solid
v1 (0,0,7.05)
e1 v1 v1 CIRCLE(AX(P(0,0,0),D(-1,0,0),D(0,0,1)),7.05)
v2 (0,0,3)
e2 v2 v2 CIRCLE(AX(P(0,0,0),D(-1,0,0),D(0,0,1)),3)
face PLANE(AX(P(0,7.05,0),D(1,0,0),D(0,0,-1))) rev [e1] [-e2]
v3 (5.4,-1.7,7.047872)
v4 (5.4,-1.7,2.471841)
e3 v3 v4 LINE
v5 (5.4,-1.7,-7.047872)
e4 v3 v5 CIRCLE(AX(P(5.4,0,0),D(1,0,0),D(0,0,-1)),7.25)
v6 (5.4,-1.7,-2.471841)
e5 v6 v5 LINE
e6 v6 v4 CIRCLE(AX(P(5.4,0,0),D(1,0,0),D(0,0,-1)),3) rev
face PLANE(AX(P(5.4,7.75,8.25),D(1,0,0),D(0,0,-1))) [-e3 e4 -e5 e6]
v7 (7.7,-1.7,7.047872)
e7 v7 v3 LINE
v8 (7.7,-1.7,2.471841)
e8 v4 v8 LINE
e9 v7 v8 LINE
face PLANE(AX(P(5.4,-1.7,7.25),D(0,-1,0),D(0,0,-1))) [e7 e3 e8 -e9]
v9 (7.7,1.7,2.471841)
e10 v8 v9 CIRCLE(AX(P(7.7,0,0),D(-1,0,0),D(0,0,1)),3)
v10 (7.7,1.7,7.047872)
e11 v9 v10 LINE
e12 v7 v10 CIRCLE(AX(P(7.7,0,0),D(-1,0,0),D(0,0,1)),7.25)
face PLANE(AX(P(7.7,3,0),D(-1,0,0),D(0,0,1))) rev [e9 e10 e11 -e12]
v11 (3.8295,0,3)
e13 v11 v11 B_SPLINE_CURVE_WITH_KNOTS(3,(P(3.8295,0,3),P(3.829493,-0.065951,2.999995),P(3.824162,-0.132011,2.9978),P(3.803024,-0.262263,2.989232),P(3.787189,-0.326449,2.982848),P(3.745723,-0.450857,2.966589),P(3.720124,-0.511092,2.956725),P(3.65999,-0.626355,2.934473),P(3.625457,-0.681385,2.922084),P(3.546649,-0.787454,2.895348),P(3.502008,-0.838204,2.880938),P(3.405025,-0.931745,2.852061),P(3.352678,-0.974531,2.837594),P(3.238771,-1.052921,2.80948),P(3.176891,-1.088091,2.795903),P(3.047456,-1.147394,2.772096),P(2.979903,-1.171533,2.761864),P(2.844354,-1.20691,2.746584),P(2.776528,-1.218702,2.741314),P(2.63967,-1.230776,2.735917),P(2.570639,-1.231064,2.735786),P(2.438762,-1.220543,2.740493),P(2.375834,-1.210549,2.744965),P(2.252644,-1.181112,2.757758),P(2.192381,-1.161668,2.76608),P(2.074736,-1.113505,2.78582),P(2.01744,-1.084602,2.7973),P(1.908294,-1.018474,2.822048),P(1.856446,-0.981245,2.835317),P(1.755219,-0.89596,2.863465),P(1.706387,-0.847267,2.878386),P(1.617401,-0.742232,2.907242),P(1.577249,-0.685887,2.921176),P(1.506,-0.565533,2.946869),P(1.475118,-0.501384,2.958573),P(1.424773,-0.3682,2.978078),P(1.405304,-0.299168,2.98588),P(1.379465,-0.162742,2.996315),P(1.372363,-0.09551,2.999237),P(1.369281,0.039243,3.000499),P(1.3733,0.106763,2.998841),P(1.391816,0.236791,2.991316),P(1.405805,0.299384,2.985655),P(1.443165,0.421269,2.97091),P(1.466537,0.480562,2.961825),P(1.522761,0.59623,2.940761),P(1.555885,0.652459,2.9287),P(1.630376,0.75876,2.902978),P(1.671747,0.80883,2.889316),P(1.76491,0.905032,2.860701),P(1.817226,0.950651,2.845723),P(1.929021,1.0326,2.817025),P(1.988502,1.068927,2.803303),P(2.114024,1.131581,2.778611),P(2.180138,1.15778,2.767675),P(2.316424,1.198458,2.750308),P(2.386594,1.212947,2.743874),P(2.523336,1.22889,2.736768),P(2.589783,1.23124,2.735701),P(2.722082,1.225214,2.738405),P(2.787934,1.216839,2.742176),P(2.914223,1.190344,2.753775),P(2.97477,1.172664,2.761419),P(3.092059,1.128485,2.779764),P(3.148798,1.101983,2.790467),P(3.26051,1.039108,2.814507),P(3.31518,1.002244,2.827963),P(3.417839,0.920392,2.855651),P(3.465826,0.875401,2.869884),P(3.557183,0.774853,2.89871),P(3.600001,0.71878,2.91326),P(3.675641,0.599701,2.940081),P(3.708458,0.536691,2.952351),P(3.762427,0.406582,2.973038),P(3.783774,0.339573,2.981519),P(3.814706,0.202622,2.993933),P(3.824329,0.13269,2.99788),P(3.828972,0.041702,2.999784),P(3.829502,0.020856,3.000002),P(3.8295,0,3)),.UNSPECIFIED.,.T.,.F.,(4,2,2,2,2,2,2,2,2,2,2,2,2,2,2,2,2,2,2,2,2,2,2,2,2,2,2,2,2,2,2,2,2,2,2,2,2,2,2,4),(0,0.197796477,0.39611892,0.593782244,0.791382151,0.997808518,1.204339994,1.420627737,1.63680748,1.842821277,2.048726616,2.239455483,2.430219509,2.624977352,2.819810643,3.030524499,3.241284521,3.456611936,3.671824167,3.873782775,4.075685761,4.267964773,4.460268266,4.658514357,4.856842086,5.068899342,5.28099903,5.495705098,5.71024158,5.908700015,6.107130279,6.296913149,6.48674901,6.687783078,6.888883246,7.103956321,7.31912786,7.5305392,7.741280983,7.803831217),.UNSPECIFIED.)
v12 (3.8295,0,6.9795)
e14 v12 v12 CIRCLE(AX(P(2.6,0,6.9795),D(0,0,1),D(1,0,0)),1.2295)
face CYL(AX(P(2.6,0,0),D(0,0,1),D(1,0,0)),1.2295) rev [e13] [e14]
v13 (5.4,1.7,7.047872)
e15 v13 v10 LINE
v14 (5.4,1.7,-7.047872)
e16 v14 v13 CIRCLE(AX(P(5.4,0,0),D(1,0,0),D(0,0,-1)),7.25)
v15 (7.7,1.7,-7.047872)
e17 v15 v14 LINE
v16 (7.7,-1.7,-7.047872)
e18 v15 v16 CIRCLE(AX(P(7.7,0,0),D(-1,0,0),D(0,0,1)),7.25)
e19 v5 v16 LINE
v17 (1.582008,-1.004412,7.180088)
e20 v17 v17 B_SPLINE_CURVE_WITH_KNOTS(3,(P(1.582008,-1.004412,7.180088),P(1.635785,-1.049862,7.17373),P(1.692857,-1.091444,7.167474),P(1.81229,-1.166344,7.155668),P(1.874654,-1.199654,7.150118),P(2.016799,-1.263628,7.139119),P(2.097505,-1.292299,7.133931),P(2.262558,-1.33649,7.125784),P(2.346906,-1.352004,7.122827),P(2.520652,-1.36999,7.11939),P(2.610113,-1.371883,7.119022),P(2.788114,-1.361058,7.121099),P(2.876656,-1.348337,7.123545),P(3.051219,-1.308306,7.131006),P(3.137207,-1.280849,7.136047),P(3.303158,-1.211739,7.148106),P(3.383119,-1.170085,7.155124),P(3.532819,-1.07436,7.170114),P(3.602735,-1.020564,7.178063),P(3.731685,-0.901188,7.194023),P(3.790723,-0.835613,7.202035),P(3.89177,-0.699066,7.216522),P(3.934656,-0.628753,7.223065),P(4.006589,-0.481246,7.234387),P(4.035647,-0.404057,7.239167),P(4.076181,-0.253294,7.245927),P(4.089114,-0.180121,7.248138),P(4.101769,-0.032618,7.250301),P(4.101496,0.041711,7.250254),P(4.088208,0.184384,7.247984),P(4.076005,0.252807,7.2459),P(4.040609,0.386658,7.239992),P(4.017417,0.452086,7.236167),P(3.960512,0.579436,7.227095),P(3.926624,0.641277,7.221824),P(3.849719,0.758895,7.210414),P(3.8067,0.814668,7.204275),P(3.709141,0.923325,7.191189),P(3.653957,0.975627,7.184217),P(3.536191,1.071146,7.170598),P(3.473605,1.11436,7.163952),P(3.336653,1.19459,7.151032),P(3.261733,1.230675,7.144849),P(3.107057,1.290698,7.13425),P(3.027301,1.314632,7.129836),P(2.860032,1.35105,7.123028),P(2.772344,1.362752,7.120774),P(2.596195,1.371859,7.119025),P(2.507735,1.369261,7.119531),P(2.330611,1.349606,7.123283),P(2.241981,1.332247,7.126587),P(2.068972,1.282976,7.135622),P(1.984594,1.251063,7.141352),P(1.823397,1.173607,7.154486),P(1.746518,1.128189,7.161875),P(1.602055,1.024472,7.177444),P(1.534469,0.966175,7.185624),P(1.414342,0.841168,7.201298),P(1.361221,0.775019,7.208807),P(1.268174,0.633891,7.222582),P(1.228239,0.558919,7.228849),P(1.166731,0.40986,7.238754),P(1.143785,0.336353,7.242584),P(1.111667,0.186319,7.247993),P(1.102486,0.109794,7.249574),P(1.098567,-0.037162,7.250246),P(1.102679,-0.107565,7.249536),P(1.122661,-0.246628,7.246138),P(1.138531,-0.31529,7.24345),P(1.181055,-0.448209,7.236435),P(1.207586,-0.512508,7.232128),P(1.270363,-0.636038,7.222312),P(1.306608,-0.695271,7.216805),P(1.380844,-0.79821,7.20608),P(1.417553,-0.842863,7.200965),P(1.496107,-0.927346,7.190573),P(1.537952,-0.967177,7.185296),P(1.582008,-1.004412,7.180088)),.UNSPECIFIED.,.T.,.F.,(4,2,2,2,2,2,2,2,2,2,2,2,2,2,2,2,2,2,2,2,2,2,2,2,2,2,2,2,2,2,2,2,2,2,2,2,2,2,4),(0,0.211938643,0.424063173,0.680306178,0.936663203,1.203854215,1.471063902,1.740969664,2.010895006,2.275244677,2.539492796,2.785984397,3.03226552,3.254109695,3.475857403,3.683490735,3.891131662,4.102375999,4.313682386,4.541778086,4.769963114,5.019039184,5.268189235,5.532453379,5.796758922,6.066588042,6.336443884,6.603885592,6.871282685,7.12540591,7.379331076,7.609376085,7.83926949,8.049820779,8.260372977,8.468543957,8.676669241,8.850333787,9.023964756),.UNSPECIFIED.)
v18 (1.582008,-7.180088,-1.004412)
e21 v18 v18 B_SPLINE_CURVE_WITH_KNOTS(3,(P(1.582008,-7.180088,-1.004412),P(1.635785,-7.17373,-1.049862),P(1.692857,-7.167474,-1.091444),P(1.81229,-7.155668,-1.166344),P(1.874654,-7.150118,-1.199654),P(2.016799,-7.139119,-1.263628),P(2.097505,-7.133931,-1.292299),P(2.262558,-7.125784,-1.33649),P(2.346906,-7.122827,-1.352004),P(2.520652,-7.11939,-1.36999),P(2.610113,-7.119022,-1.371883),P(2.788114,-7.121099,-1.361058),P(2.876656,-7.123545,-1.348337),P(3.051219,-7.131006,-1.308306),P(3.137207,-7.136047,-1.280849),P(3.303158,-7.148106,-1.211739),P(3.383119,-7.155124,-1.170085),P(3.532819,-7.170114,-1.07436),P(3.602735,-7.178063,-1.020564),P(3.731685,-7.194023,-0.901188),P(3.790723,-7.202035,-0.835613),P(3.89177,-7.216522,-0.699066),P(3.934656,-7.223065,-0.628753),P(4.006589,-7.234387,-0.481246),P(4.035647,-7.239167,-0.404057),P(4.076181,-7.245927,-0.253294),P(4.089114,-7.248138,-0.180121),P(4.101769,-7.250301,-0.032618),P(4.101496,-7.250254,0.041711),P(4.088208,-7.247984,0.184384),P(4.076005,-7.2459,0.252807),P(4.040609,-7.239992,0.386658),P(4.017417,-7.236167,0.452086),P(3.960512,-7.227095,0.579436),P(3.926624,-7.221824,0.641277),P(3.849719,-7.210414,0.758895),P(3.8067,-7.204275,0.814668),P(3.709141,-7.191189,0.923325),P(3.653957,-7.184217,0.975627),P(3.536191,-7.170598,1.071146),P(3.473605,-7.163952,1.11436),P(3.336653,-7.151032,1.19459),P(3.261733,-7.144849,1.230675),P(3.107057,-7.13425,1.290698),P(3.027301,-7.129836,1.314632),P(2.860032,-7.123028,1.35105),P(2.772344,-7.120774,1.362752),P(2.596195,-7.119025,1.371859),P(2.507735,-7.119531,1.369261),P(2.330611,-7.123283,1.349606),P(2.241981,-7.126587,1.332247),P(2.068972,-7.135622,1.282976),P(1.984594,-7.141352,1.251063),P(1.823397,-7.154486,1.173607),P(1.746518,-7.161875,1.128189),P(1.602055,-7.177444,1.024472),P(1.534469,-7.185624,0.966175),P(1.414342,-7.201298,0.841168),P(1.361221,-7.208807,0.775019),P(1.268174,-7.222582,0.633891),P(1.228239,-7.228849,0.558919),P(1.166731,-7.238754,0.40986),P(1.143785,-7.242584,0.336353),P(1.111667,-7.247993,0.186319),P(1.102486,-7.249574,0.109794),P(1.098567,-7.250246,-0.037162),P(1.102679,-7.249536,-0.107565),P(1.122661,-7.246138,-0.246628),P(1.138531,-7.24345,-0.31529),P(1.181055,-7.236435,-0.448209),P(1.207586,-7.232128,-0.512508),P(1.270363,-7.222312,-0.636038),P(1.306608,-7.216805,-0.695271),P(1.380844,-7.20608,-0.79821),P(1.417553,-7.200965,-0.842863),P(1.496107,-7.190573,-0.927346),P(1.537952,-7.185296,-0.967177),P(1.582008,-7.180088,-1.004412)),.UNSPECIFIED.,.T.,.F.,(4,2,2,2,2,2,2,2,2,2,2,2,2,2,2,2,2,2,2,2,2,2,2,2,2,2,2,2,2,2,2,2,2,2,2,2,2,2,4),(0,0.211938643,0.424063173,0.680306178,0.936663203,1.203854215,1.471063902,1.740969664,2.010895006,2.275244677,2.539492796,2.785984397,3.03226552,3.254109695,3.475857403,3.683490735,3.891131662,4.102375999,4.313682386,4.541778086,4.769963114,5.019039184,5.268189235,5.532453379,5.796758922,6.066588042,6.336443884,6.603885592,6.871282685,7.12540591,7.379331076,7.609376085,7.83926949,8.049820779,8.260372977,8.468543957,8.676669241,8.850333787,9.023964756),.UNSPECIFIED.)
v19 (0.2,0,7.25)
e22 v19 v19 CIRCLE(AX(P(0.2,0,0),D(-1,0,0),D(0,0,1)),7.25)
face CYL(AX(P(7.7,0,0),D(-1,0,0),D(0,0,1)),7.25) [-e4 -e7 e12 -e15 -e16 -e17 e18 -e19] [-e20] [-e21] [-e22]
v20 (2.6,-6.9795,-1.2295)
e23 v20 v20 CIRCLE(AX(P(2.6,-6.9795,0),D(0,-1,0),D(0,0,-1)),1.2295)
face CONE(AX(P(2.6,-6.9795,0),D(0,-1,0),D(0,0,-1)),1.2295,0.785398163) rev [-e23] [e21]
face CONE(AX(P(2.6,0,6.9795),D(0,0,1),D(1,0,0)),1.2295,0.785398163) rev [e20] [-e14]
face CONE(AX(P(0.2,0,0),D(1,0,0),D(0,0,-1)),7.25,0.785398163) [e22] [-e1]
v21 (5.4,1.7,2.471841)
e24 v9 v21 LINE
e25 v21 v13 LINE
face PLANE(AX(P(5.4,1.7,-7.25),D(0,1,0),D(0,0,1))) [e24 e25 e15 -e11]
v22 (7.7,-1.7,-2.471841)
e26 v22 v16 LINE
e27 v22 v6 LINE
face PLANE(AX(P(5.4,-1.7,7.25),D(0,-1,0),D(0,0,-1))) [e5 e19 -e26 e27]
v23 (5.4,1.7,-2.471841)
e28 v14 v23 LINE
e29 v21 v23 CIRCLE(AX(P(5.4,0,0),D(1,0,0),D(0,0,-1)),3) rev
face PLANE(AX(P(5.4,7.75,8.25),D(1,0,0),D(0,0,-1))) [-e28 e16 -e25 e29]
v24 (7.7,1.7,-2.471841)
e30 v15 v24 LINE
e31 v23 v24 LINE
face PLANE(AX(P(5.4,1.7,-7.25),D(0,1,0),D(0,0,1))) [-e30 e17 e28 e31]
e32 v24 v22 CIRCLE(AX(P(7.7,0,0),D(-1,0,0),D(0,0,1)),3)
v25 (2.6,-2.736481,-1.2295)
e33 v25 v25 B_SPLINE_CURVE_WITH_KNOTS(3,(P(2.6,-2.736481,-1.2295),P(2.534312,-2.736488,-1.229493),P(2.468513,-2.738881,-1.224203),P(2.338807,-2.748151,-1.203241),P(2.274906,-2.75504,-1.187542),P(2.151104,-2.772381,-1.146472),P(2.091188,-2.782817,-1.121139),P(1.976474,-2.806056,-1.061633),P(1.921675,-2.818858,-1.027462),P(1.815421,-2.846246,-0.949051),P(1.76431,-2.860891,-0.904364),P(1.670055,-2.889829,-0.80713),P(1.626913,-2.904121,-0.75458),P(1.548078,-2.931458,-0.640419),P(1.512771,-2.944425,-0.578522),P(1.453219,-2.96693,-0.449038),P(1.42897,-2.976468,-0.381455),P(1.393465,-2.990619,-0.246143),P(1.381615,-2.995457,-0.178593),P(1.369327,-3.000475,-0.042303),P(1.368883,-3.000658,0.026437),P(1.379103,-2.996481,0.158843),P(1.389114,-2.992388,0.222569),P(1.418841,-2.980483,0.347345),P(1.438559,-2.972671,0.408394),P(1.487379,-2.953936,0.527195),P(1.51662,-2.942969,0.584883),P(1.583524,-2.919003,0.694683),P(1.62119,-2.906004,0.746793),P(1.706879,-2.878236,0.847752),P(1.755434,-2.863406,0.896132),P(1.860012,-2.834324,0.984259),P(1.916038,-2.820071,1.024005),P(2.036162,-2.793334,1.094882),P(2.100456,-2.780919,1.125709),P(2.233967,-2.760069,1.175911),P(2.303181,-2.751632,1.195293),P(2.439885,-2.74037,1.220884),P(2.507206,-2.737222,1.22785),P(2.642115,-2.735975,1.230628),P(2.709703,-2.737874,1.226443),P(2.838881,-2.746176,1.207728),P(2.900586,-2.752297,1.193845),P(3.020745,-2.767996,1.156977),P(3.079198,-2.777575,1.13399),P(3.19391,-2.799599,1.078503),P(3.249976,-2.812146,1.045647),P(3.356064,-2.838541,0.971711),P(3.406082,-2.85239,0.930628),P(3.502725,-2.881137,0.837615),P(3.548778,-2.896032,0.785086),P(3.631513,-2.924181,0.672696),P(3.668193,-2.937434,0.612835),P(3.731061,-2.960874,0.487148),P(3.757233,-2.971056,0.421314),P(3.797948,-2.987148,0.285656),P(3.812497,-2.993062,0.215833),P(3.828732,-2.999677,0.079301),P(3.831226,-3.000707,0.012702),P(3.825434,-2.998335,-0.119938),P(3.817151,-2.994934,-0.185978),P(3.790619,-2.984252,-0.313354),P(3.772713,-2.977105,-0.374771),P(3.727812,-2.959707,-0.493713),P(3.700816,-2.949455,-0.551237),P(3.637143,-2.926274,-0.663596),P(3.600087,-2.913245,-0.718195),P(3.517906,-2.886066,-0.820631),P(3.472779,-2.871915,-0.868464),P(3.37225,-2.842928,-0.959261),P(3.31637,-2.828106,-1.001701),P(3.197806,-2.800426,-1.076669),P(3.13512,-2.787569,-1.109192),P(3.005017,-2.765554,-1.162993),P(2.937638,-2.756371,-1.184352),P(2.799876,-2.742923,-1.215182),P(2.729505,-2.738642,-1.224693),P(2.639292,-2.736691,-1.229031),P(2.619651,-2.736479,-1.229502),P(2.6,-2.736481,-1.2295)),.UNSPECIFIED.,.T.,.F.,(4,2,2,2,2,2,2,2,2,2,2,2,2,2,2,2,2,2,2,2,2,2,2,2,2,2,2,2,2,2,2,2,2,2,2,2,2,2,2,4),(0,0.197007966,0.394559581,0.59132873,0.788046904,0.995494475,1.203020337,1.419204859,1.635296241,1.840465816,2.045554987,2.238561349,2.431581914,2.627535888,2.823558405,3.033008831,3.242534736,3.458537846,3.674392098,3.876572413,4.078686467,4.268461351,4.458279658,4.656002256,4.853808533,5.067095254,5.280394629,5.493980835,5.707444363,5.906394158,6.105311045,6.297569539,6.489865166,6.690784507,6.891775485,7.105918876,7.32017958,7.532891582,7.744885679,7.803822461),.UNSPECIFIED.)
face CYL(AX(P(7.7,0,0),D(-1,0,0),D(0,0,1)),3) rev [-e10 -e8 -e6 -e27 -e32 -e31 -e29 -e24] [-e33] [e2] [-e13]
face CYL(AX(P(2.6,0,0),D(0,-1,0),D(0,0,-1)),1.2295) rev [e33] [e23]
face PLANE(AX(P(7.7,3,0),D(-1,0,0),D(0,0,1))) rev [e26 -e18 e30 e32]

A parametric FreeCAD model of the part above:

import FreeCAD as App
import Part
import Sketcher
from FreeCAD import Vector
Q = App.Units.Quantity

doc = App.newDocument("Part")
body = doc.addObject("PartDesign::Body", "Body")

sketch1 = body.newObject("Sketcher::SketchObject", "Sketch")
sketch1.AttachmentSupport = (doc.getObject("XY_Plane"), [""])
sketch1.MapMode = "FlatFace"
sketch1.addGeometry([
    Part.LineSegment(Vector(0, 7.05, 0), Vector(0, 3, 0)),
    Part.LineSegment(Vector(0, 3, 0), Vector(7.7, 3, 0)),
    Part.LineSegment(Vector(7.7, 3, 0), Vector(7.7, 7.25, 0)),
    Part.LineSegment(Vector(7.7, 7.25, 0), Vector(0.2, 7.25, 0)),
    Part.LineSegment(Vector(0.2, 7.25, 0), Vector(0, 7.05, 0)),
], False)
sketch1.addConstraint([
    Sketcher.Constraint("Coincident", 0, 2, 1, 1),
    Sketcher.Constraint("Coincident", 1, 2, 2, 1),
    Sketcher.Constraint("Coincident", 2, 2, 3, 1),
    Sketcher.Constraint("Coincident", 3, 2, 4, 1),
    Sketcher.Constraint("Coincident", 4, 2, 0, 1),
    Sketcher.Constraint("Vertical", 0),
    Sketcher.Constraint("Horizontal", 1),
    Sketcher.Constraint("Vertical", 2),
    Sketcher.Constraint("Horizontal", 3),
    Sketcher.Constraint("PointOnObject", 0, 2, -2),
    Sketcher.Constraint("Angle", 4, Q("-135 deg")),
    Sketcher.Constraint("DistanceX", 1, 1, 1, 2, 7.7),
    Sketcher.Constraint("DistanceX", 3, 2, 3, 1, 7.5),
    Sketcher.Constraint("DistanceY", -1, 1, 0, 2, 3.0),
    Sketcher.Constraint("DistanceY", 0, 2, 0, 1, 4.05),
])
revolution = body.newObject("PartDesign::Revolution", "Revolution")
revolution.Profile = sketch1
revolution.ReferenceAxis = (sketch1, ["H_Axis"])
revolution.Angle = 360

sketch2 = body.newObject("Sketcher::SketchObject", "Sketch001")
sketch2.AttachmentSupport = (doc.getObject("YZ_Plane"), [""])
sketch2.MapMode = "FlatFace"
sketch2.AttachmentOffset = App.Placement(Vector(0, 0, 7.7), App.Rotation())
sketch2.addGeometry([
    Part.LineSegment(Vector(7.8, 8.2, 0), Vector(-7.8, 8.2, 0)),
    Part.LineSegment(Vector(-7.8, 8.2, 0), Vector(-7.8, -8.2, 0)),
    Part.LineSegment(Vector(-7.8, -8.2, 0), Vector(7.8, -8.2, 0)),
    Part.LineSegment(Vector(7.8, -8.2, 0), Vector(7.8, 8.2, 0)),
    Part.LineSegment(Vector(-1.7, -7.2, 0), Vector(-1.7, 7.2, 0)),
    Part.LineSegment(Vector(-1.7, 7.2, 0), Vector(1.7, 7.2, 0)),
    Part.LineSegment(Vector(1.7, 7.2, 0), Vector(1.7, -7.2, 0)),
    Part.LineSegment(Vector(1.7, -7.2, 0), Vector(-1.7, -7.2, 0)),
], False)
sketch2.addConstraint([
    Sketcher.Constraint("Coincident", 0, 2, 1, 1),
    Sketcher.Constraint("Coincident", 1, 2, 2, 1),
    Sketcher.Constraint("Coincident", 2, 2, 3, 1),
    Sketcher.Constraint("Coincident", 3, 2, 0, 1),
    Sketcher.Constraint("Coincident", 4, 2, 5, 1),
    Sketcher.Constraint("Coincident", 5, 2, 6, 1),
    Sketcher.Constraint("Coincident", 6, 2, 7, 1),
    Sketcher.Constraint("Coincident", 7, 2, 4, 1),
    Sketcher.Constraint("Horizontal", 0),
    Sketcher.Constraint("Vertical", 1),
    Sketcher.Constraint("Horizontal", 2),
    Sketcher.Constraint("Vertical", 3),
    Sketcher.Constraint("Vertical", 4),
    Sketcher.Constraint("Horizontal", 5),
    Sketcher.Constraint("Vertical", 6),
    Sketcher.Constraint("Horizontal", 7),
    Sketcher.Constraint("Symmetric", 0, 2, 2, 2, -1, 1),
    Sketcher.Constraint("Symmetric", 4, 2, 6, 2, -1, 1),
    Sketcher.Constraint("DistanceX", 0, 2, 0, 1, 15.5),
    Sketcher.Constraint("DistanceX", 5, 1, 5, 2, 3.4),
    Sketcher.Constraint("DistanceY", 1, 2, 1, 1, 16.5),
    Sketcher.Constraint("DistanceY", 4, 1, 4, 2, 14.5),
])
pocket1 = body.newObject("PartDesign::Pocket", "Pocket")
pocket1.Profile = sketch2
pocket1.Length = 2.3

sketch3 = body.newObject("Sketcher::SketchObject", "Sketch002")
sketch3.AttachmentSupport = (doc.getObject("YZ_Plane"), [""])
sketch3.MapMode = "FlatFace"
sketch3.AttachmentOffset = App.Placement(Vector(0, 0, 2.6), App.Rotation())
sketch3.addGeometry([
    Part.LineSegment(Vector(1.5, 7.25, 0), Vector(0, 7.25, 0)),
    Part.LineSegment(Vector(0, 7.25, 0), Vector(0, 0, 0)),
    Part.LineSegment(Vector(0, 0, 0), Vector(1.23, 0, 0)),
    Part.LineSegment(Vector(1.23, 0, 0), Vector(1.23, 6.98, 0)),
    Part.LineSegment(Vector(1.23, 6.98, 0), Vector(1.5, 7.25, 0)),
], False)
sketch3.addConstraint([
    Sketcher.Constraint("Coincident", 0, 2, 1, 1),
    Sketcher.Constraint("Coincident", 1, 2, 2, 1),
    Sketcher.Constraint("Coincident", 2, 2, 3, 1),
    Sketcher.Constraint("Coincident", 3, 2, 4, 1),
    Sketcher.Constraint("Coincident", 4, 2, 0, 1),
    Sketcher.Constraint("Horizontal", 0),
    Sketcher.Constraint("Vertical", 1),
    Sketcher.Constraint("Horizontal", 2),
    Sketcher.Constraint("Vertical", 3),
    Sketcher.Constraint("Coincident", 1, 2, -1, 1),
    Sketcher.Constraint("Angle", 4, Q("45 deg")),
    Sketcher.Constraint("DistanceX", 0, 2, 0, 1, 1.5),
    Sketcher.Constraint("DistanceY", 1, 2, 1, 1, 7.25),
    Sketcher.Constraint("DistanceX", 2, 1, 2, 2, 1.2295),
])
groove = body.newObject("PartDesign::Groove", "Groove")
groove.Profile = sketch3
groove.ReferenceAxis = (sketch3, ["V_Axis"])
groove.Angle = 360

sketch4 = body.newObject("Sketcher::SketchObject", "Sketch003")
sketch4.AttachmentSupport = (doc.getObject("YZ_Plane"), [""])
sketch4.MapMode = "FlatFace"
sketch4.AttachmentOffset = App.Placement(Vector(0, 0, 2.6), App.Rotation())
sketch4.addGeometry([
    Part.LineSegment(Vector(-7.25, 1.5, 0), Vector(-7.25, 0, 0)),
    Part.LineSegment(Vector(-7.25, 0, 0), Vector(0, 0, 0)),
    Part.LineSegment(Vector(0, 0, 0), Vector(0, 1.23, 0)),
    Part.LineSegment(Vector(0, 1.23, 0), Vector(-6.98, 1.23, 0)),
    Part.LineSegment(Vector(-6.98, 1.23, 0), Vector(-7.25, 1.5, 0)),
], False)
sketch4.addConstraint([
    Sketcher.Constraint("Coincident", 0, 2, 1, 1),
    Sketcher.Constraint("Coincident", 1, 2, 2, 1),
    Sketcher.Constraint("Coincident", 2, 2, 3, 1),
    Sketcher.Constraint("Coincident", 3, 2, 4, 1),
    Sketcher.Constraint("Coincident", 4, 2, 0, 1),
    Sketcher.Constraint("Vertical", 0),
    Sketcher.Constraint("Horizontal", 1),
    Sketcher.Constraint("Vertical", 2),
    Sketcher.Constraint("Horizontal", 3),
    Sketcher.Constraint("Coincident", 1, 2, -1, 1),
    Sketcher.Constraint("Angle", 4, Q("135 deg")),
    Sketcher.Constraint("DistanceY", 0, 2, 0, 1, 1.5),
    Sketcher.Constraint("DistanceX", 1, 1, 1, 2, 7.25),
    Sketcher.Constraint("DistanceX", 3, 2, 3, 1, 6.9795),
])
groove2 = body.newObject("PartDesign::Groove", "Groove001")
groove2.Profile = sketch4
groove2.ReferenceAxis = (sketch4, ["H_Axis"])
groove2.Angle = 360

doc.recompute()
